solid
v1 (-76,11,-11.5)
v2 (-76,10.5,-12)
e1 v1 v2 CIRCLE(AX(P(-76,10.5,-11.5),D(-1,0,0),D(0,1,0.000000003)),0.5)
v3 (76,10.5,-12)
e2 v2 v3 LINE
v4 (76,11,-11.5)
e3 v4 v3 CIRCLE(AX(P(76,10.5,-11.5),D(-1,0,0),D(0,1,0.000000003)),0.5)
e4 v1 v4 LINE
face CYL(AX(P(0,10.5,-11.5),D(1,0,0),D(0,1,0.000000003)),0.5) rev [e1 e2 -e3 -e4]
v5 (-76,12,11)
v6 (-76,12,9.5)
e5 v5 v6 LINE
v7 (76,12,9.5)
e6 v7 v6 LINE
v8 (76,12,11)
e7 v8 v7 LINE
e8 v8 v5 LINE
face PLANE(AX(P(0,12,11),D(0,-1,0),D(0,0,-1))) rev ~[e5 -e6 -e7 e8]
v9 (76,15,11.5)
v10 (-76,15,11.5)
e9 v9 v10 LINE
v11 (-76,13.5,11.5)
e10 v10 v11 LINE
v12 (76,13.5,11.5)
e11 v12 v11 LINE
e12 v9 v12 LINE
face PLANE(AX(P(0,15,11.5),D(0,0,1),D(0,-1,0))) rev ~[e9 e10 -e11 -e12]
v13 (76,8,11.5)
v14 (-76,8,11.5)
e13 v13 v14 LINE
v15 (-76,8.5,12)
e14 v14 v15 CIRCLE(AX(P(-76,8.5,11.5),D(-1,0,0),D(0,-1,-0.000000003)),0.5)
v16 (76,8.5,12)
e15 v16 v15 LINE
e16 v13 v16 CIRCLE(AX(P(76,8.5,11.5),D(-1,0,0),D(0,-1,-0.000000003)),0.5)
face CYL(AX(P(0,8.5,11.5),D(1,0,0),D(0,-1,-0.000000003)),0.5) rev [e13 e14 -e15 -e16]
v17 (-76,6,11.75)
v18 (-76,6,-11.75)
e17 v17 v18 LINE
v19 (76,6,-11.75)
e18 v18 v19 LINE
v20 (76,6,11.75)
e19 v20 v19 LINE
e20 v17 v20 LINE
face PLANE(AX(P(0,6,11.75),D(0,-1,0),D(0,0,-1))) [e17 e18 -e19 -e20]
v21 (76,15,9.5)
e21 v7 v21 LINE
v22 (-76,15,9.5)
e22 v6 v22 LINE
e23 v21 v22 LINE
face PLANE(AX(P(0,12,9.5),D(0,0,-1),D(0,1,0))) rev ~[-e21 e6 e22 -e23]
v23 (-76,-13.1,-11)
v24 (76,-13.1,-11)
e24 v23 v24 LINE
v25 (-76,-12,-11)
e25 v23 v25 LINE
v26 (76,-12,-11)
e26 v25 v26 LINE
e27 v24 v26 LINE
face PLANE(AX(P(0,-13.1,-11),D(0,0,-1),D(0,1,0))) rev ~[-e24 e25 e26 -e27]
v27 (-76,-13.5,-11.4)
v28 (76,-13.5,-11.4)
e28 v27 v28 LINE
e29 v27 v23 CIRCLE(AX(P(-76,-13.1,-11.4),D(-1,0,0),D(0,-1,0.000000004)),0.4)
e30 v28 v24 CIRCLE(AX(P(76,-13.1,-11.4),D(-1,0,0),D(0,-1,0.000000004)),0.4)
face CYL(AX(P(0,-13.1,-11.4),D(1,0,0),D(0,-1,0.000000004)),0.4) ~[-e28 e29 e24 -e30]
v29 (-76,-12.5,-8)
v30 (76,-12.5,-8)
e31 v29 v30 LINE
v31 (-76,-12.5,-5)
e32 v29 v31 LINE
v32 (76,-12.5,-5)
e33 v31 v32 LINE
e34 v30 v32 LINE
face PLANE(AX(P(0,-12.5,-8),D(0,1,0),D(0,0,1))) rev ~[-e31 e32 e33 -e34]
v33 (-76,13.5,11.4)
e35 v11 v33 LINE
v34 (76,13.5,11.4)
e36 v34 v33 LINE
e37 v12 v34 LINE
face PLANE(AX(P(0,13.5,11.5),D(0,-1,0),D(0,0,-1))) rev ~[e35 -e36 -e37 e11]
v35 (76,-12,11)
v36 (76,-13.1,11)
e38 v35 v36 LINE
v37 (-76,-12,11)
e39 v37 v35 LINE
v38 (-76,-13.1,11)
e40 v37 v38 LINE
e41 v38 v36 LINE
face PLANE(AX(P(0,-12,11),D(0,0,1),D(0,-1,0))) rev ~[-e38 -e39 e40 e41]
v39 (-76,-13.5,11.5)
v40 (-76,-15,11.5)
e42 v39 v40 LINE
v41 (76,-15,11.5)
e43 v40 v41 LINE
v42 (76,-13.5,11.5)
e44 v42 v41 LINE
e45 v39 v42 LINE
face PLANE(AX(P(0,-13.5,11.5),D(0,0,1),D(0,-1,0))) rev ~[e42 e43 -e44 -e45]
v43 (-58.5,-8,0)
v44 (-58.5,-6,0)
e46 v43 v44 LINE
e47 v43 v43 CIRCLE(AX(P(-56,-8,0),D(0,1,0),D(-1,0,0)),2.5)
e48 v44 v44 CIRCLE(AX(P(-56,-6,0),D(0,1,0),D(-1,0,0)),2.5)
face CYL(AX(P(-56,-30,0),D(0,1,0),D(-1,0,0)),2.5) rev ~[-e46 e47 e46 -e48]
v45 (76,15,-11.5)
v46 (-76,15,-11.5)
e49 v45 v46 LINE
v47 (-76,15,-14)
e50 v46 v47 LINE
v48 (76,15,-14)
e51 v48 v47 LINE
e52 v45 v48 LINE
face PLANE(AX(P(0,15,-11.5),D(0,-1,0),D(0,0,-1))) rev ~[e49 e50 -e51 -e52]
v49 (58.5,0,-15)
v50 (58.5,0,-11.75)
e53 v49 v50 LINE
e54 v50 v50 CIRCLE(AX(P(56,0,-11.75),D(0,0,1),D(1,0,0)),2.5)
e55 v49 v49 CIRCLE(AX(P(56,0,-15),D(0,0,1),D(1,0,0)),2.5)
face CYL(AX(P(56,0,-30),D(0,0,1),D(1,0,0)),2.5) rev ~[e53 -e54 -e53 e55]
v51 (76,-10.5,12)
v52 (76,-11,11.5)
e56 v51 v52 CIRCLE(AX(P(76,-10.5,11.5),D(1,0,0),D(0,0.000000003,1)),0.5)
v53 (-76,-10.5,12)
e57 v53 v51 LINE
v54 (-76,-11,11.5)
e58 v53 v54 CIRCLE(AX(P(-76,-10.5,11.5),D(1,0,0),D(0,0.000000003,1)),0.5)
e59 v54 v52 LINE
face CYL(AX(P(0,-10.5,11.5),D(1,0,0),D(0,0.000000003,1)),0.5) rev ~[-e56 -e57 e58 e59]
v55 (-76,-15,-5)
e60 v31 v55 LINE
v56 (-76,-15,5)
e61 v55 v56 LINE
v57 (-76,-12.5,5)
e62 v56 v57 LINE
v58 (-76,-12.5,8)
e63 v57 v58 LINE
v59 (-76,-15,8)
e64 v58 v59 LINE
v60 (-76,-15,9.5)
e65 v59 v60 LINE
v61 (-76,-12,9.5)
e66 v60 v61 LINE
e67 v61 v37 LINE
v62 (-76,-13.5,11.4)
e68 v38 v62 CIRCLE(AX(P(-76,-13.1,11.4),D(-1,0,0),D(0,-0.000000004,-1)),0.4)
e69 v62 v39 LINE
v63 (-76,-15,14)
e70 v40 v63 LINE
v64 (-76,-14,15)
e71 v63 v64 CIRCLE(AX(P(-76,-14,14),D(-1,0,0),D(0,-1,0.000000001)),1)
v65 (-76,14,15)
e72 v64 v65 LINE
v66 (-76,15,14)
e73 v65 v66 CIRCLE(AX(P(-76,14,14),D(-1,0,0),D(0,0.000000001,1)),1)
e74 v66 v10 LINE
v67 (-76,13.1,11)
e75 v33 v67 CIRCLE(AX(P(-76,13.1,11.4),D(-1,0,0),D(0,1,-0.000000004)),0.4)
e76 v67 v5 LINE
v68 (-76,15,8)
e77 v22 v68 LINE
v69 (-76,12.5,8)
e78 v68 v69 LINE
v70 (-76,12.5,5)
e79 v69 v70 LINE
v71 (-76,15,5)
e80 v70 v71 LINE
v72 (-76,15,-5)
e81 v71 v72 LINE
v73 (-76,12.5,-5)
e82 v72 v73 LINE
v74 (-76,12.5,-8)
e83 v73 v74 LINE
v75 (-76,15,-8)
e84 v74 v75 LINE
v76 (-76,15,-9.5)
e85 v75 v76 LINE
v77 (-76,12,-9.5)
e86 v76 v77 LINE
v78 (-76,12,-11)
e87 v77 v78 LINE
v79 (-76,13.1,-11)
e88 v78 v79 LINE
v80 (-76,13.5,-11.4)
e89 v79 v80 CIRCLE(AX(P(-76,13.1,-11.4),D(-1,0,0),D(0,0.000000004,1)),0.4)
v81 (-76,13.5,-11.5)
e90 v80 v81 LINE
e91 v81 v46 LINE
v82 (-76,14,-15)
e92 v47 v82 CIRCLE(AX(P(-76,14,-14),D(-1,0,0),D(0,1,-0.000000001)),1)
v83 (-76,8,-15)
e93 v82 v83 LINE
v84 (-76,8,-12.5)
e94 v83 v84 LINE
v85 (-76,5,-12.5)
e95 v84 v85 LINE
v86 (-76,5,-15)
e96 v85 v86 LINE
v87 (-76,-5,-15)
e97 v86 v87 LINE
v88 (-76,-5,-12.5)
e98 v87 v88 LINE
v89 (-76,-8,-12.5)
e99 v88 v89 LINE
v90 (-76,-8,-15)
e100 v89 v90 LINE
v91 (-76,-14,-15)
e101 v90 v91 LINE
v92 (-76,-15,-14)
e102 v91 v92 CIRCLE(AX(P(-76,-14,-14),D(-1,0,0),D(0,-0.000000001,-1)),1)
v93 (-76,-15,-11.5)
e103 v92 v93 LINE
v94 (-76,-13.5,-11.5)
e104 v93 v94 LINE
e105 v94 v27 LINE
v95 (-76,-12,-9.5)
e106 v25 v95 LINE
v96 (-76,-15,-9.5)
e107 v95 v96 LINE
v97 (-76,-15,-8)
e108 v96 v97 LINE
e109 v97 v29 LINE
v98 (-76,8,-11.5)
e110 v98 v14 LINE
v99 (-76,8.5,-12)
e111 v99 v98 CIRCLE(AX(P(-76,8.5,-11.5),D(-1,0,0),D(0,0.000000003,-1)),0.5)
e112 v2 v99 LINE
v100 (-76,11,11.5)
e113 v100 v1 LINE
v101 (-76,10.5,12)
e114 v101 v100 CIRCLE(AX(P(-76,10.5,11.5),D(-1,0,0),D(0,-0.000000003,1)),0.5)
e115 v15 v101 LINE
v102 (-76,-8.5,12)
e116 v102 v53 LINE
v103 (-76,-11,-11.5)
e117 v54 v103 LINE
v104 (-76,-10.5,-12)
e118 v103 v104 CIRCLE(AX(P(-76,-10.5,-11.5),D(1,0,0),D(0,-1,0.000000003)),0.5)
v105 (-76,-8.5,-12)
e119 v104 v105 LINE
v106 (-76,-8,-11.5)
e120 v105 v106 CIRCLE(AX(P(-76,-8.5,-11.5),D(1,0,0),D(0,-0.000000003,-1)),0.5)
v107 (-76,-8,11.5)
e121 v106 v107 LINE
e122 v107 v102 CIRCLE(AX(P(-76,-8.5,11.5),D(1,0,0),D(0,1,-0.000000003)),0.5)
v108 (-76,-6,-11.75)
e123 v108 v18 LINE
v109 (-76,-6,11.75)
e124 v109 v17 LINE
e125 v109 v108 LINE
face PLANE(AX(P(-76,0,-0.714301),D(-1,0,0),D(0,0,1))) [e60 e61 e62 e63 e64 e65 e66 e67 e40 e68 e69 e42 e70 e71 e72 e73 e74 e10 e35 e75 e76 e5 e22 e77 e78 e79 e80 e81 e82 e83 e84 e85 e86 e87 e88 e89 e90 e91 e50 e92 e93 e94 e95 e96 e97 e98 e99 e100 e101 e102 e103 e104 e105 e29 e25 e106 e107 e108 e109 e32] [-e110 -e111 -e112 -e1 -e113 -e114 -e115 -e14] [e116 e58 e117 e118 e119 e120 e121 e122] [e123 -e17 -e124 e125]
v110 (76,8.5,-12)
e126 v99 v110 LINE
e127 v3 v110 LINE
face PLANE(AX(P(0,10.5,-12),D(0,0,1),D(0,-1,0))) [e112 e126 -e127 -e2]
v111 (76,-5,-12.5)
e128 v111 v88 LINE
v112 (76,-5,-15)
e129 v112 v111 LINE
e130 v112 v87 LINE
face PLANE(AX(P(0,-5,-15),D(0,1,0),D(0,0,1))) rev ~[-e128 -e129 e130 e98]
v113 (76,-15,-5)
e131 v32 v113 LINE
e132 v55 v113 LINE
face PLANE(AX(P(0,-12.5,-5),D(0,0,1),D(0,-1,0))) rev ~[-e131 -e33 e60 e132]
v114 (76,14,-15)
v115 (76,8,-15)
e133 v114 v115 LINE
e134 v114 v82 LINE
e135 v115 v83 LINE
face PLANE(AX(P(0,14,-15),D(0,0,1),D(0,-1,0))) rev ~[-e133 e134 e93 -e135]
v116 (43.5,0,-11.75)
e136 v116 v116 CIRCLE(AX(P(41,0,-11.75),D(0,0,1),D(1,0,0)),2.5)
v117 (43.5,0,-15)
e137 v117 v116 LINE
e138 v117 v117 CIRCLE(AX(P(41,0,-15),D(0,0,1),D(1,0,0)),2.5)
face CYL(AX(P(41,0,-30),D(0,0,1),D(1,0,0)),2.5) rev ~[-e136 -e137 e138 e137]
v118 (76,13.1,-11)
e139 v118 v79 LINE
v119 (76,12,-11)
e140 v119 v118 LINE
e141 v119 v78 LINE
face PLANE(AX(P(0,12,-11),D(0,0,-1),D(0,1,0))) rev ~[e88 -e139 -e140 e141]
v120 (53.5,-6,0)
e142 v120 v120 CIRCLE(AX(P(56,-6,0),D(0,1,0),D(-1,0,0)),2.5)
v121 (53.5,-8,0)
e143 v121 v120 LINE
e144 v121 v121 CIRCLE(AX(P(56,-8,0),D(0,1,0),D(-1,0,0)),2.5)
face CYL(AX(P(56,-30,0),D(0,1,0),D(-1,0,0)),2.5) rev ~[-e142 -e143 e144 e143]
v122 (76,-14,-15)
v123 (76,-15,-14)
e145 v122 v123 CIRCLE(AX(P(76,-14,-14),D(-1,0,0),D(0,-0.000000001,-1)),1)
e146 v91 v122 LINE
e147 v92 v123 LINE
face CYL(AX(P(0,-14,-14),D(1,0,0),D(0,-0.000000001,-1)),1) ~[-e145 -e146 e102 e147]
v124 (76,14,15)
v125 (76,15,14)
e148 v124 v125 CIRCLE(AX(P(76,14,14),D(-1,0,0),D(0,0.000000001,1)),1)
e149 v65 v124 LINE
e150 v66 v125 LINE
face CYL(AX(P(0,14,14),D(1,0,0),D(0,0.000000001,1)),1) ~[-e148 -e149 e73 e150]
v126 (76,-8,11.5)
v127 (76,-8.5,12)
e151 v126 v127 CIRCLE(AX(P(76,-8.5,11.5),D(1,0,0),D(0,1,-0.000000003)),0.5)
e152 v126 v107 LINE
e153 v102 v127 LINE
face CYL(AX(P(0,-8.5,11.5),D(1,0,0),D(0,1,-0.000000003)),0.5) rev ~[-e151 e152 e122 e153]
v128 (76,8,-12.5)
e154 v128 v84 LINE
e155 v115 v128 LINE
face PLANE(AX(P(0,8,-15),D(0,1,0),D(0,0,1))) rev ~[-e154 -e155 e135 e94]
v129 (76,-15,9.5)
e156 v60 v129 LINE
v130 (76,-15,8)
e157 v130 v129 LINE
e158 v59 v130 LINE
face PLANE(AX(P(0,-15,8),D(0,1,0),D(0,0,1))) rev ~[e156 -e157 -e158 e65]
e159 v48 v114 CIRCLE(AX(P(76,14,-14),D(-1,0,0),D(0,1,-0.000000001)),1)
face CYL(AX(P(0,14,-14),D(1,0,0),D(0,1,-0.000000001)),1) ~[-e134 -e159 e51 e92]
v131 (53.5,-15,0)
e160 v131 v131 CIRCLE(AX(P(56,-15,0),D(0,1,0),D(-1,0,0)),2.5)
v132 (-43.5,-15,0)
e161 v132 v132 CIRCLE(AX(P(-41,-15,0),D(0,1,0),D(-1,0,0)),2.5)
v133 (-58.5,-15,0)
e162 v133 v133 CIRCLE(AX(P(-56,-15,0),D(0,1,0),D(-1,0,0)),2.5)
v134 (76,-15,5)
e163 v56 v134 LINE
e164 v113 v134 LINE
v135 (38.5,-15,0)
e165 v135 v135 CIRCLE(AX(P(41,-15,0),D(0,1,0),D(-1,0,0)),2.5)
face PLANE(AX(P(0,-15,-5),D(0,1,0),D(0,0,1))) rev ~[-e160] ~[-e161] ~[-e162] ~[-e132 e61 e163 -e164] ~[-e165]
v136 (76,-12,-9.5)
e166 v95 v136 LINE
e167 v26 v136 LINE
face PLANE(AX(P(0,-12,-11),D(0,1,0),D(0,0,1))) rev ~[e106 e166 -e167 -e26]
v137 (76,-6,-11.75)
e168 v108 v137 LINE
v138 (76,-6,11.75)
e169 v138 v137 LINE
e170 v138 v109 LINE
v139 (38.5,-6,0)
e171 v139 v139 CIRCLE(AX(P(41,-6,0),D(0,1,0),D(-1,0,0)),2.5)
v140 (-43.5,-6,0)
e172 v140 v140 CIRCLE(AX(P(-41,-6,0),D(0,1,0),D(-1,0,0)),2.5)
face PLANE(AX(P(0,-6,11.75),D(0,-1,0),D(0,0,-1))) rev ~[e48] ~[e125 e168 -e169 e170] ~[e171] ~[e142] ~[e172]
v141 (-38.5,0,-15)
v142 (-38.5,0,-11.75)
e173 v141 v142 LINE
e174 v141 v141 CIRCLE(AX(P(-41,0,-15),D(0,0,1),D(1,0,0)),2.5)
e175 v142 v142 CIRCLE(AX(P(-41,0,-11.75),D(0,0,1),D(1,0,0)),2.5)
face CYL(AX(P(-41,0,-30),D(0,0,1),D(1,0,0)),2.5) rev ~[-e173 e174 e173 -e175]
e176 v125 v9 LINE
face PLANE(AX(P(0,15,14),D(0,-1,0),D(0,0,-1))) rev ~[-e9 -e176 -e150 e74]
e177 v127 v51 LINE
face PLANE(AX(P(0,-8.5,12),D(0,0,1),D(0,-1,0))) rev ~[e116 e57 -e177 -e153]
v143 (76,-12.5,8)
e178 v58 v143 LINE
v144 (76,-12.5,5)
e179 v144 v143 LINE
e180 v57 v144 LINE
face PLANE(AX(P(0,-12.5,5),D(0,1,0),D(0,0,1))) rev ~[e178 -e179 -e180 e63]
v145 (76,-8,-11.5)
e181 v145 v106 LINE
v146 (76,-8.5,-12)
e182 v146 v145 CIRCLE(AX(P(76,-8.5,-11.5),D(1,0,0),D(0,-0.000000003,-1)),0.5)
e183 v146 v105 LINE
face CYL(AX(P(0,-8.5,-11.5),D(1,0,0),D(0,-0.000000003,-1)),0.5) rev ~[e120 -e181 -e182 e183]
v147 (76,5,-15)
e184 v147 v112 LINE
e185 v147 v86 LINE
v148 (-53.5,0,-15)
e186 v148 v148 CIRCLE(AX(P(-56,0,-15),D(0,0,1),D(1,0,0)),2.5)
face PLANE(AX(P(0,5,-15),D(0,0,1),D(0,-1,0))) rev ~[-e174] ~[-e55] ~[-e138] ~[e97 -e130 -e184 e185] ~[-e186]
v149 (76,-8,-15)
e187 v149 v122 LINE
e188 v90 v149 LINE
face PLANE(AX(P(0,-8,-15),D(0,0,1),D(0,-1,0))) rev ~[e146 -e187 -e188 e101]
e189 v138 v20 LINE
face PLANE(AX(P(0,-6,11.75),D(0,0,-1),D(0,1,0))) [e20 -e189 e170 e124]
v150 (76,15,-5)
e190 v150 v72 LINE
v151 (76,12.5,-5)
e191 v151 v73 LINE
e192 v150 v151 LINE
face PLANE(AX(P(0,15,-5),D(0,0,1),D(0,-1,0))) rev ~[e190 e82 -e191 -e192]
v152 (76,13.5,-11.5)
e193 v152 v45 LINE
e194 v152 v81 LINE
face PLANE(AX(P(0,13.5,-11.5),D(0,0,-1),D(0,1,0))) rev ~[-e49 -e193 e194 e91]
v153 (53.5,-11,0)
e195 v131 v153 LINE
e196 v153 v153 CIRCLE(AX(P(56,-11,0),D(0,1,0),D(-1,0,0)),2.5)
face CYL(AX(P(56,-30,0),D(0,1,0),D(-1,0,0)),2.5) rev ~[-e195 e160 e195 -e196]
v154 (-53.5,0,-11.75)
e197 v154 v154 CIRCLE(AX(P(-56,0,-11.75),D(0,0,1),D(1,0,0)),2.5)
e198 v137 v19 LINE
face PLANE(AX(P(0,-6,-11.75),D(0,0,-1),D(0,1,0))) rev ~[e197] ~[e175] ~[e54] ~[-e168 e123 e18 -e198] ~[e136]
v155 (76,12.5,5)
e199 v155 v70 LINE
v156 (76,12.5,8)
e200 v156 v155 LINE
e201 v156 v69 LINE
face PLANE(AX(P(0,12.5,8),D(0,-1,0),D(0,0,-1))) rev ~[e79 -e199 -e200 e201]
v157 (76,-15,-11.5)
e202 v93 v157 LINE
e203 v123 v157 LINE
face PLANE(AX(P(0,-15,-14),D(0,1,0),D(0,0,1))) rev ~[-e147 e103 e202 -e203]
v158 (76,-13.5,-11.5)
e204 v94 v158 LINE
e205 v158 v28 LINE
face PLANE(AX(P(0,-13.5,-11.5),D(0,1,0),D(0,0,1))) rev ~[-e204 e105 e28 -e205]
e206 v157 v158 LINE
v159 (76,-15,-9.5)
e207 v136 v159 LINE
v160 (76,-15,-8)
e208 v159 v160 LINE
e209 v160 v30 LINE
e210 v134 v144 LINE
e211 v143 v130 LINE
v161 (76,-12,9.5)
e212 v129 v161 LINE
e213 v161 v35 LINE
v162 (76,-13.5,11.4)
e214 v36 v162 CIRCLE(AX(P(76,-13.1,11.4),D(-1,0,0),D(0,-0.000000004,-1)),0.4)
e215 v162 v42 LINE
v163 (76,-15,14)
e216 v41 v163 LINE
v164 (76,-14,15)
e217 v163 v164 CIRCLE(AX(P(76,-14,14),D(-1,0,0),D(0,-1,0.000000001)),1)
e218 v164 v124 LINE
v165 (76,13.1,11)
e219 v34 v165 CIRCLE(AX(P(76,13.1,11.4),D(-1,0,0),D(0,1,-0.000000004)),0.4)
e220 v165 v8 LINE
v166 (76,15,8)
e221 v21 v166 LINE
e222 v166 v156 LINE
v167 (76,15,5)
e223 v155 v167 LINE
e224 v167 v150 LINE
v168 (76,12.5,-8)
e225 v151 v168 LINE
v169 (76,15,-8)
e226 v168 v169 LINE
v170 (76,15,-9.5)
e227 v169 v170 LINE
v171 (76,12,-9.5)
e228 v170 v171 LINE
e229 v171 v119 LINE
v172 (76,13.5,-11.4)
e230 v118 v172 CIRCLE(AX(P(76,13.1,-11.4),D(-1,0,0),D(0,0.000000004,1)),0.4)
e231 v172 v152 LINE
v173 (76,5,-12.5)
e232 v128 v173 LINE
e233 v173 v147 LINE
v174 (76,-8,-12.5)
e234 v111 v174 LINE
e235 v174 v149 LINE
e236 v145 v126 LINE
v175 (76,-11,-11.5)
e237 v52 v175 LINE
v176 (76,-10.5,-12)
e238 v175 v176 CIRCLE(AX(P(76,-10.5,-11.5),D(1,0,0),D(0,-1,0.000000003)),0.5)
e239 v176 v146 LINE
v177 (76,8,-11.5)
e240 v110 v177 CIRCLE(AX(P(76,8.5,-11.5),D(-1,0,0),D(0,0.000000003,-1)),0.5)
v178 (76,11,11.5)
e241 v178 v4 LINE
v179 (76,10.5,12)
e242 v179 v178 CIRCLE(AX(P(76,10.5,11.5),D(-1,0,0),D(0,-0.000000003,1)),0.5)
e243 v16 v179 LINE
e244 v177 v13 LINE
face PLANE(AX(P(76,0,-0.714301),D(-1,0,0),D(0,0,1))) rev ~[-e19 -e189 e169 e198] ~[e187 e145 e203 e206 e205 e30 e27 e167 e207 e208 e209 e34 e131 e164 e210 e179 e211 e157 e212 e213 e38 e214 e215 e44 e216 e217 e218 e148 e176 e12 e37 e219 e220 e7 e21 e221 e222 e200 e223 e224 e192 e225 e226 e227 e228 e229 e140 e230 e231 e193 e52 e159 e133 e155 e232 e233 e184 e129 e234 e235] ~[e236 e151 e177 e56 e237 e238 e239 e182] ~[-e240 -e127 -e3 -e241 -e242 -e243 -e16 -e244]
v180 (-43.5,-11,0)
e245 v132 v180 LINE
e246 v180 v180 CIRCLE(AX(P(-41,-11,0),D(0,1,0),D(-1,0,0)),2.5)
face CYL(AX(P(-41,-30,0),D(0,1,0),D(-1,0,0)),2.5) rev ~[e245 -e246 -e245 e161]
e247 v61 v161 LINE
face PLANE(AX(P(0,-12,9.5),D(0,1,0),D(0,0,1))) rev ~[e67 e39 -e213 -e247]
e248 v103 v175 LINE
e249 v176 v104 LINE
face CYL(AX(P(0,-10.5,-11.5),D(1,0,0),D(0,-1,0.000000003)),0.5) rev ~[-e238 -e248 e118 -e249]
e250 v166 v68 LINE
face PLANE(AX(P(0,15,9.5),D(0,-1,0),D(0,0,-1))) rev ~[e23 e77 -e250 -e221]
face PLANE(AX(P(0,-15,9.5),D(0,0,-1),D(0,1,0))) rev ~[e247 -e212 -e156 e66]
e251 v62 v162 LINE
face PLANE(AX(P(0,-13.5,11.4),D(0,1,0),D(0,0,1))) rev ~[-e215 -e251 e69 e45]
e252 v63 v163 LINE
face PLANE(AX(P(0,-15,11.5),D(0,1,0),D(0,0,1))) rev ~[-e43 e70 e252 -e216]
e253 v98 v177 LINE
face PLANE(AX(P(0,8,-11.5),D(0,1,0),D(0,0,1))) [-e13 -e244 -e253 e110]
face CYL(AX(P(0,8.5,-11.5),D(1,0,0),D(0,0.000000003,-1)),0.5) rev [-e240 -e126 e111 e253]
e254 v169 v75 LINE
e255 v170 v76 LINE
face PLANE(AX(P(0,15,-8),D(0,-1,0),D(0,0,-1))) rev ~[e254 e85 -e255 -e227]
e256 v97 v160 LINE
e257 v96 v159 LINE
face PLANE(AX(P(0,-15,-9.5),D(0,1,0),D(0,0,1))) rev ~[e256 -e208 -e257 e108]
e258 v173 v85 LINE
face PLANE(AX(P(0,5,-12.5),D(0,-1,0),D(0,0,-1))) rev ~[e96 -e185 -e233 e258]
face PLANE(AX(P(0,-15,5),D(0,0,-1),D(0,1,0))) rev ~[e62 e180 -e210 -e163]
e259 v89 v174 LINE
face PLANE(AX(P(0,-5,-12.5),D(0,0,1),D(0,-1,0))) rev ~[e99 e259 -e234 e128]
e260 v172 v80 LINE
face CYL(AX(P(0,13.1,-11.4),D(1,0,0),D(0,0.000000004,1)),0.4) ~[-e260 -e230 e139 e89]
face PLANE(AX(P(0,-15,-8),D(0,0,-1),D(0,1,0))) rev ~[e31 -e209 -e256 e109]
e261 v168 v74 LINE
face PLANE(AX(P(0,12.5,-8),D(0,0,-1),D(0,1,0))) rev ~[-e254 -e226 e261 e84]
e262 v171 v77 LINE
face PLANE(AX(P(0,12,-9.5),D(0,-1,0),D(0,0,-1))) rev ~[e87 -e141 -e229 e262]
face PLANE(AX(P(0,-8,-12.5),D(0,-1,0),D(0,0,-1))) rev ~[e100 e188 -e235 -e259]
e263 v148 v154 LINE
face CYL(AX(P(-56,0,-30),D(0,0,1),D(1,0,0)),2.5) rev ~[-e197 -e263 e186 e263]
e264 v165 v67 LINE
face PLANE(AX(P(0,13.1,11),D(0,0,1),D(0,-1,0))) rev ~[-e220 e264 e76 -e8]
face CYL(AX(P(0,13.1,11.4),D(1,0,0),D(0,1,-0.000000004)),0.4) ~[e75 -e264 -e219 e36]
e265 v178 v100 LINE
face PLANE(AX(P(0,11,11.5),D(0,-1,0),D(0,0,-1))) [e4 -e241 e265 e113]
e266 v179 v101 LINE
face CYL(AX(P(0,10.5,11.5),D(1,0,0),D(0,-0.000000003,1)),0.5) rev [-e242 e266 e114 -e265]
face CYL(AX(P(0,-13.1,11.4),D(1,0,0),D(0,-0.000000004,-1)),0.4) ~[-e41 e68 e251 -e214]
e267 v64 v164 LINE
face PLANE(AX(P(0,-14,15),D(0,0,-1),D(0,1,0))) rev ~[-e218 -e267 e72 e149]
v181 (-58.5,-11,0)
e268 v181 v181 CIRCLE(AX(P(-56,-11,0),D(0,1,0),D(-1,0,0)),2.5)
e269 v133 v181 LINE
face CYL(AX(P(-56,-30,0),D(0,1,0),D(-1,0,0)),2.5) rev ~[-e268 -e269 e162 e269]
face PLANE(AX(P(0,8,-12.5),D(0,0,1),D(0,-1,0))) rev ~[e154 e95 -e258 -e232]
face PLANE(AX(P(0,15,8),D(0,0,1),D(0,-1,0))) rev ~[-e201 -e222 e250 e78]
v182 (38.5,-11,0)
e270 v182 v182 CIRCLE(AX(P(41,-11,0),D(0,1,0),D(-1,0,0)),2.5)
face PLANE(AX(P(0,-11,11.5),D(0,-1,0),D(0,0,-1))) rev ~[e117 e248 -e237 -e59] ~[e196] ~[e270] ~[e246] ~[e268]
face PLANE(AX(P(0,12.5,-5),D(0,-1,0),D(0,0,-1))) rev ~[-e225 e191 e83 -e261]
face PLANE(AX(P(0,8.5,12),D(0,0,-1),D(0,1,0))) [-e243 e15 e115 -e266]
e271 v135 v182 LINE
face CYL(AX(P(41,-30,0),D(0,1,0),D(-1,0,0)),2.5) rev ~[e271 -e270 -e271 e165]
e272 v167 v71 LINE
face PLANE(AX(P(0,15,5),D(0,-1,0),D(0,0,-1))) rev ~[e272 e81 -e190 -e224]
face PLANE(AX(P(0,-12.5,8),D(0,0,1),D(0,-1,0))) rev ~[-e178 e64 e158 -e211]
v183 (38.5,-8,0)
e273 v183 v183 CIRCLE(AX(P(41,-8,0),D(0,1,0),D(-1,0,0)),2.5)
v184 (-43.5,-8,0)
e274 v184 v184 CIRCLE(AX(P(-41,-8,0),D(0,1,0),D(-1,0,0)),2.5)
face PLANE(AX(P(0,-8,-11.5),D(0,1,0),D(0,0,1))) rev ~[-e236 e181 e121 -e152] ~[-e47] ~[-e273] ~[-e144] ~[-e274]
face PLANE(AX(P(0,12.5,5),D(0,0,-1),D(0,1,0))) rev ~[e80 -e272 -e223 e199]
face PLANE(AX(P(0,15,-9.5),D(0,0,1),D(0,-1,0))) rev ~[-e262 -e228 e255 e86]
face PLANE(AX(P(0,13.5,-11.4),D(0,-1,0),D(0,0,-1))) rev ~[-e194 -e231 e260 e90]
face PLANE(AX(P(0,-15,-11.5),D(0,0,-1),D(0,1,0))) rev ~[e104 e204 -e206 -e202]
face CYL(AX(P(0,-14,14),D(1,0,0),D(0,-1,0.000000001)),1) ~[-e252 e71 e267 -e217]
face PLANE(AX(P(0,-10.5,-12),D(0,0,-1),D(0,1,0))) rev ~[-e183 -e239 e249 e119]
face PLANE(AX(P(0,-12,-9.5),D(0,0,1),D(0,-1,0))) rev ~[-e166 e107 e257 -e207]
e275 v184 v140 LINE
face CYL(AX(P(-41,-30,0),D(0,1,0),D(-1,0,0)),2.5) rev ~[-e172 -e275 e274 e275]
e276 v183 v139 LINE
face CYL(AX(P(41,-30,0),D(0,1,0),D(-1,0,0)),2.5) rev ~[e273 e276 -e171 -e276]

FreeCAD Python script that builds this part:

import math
import FreeCAD as App
import Part
import Sketcher
from FreeCAD import Vector
Q = App.Units.Quantity

doc = App.newDocument("Part")
body = doc.addObject("PartDesign::Body", "Body")

# Sketch on YZ plane
sketch1 = doc.addObject("Sketcher::SketchObject", "Sketch")
body.addObject(sketch1)
sketch1.AttachmentSupport = (doc.YZ_Plane, [""])
sketch1.MapMode = "FlatFace"
sketch1.addGeometry(Part.LineSegment(Vector(15, 11.5, 0), Vector(15, 14, 0)), False)
sketch1.addGeometry(Part.ArcOfCircle(Part.Circle(Vector(14, 14, 0), Vector(0, 0, 1), 1), math.radians(0), math.radians(90)), False)
sketch1.addGeometry(Part.LineSegment(Vector(14, 15, 0), Vector(-14, 15, 0)), False)
sketch1.addGeometry(Part.ArcOfCircle(Part.Circle(Vector(-14, 14, 0), Vector(0, 0, 1), 1), math.radians(90), math.radians(180)), False)
sketch1.addGeometry(Part.LineSegment(Vector(-15, 14, 0), Vector(-15, 11.5, 0)), False)
sketch1.addGeometry(Part.LineSegment(Vector(-15, 11.5, 0), Vector(-13.5, 11.5, 0)), False)
sketch1.addGeometry(Part.LineSegment(Vector(-13.5, 11.5, 0), Vector(-13.5, 11.4, 0)), False)
sketch1.addGeometry(Part.ArcOfCircle(Part.Circle(Vector(-13.1, 11.4, 0), Vector(0, 0, 1), 0.4), math.radians(-180), math.radians(-90)), False)
sketch1.addGeometry(Part.LineSegment(Vector(-13.1, 11, 0), Vector(-12, 11, 0)), False)
sketch1.addGeometry(Part.LineSegment(Vector(-12, 11, 0), Vector(-12, 9.5, 0)), False)
sketch1.addGeometry(Part.LineSegment(Vector(-12, 9.5, 0), Vector(-15, 9.5, 0)), False)
sketch1.addGeometry(Part.LineSegment(Vector(-15, 9.5, 0), Vector(-15, 8, 0)), False)
sketch1.addGeometry(Part.LineSegment(Vector(-15, 8, 0), Vector(-12.5, 8, 0)), False)
sketch1.addGeometry(Part.LineSegment(Vector(-12.5, 8, 0), Vector(-12.5, 5, 0)), False)
sketch1.addGeometry(Part.LineSegment(Vector(-12.5, 5, 0), Vector(-15, 5, 0)), False)
sketch1.addGeometry(Part.LineSegment(Vector(-15, 5, 0), Vector(-15, -5, 0)), False)
sketch1.addGeometry(Part.LineSegment(Vector(-15, -5, 0), Vector(-12.5, -5, 0)), False)
sketch1.addGeometry(Part.LineSegment(Vector(-12.5, -5, 0), Vector(-12.5, -8, 0)), False)
sketch1.addGeometry(Part.LineSegment(Vector(-12.5, -8, 0), Vector(-15, -8, 0)), False)
sketch1.addGeometry(Part.LineSegment(Vector(-15, -8, 0), Vector(-15, -9.5, 0)), False)
sketch1.addGeometry(Part.LineSegment(Vector(-15, -9.5, 0), Vector(-12, -9.5, 0)), False)
sketch1.addGeometry(Part.LineSegment(Vector(-12, -9.5, 0), Vector(-12, -11, 0)), False)
sketch1.addGeometry(Part.LineSegment(Vector(-12, -11, 0), Vector(-13.1, -11, 0)), False)
sketch1.addGeometry(Part.ArcOfCircle(Part.Circle(Vector(-13.1, -11.4, 0), Vector(0, 0, 1), 0.4), math.radians(90), math.radians(180)), False)
sketch1.addGeometry(Part.LineSegment(Vector(-13.5, -11.4, 0), Vector(-13.5, -11.5, 0)), False)
sketch1.addGeometry(Part.LineSegment(Vector(-13.5, -11.5, 0), Vector(-15, -11.5, 0)), False)
sketch1.addGeometry(Part.LineSegment(Vector(-15, -11.5, 0), Vector(-15, -14, 0)), False)
sketch1.addGeometry(Part.ArcOfCircle(Part.Circle(Vector(-14, -14, 0), Vector(0, 0, 1), 1), math.radians(-180), math.radians(-90)), False)
sketch1.addGeometry(Part.LineSegment(Vector(-14, -15, 0), Vector(-8, -15, 0)), False)
sketch1.addGeometry(Part.LineSegment(Vector(-8, -15, 0), Vector(-8, -12.5, 0)), False)
sketch1.addGeometry(Part.LineSegment(Vector(-8, -12.5, 0), Vector(-5, -12.5, 0)), False)
sketch1.addGeometry(Part.LineSegment(Vector(-5, -12.5, 0), Vector(-5, -15, 0)), False)
sketch1.addGeometry(Part.LineSegment(Vector(-5, -15, 0), Vector(5, -15, 0)), False)
sketch1.addGeometry(Part.LineSegment(Vector(5, -15, 0), Vector(5, -12.5, 0)), False)
sketch1.addGeometry(Part.LineSegment(Vector(5, -12.5, 0), Vector(8, -12.5, 0)), False)
sketch1.addGeometry(Part.LineSegment(Vector(8, -12.5, 0), Vector(8, -15, 0)), False)
sketch1.addGeometry(Part.LineSegment(Vector(8, -15, 0), Vector(14, -15, 0)), False)
sketch1.addGeometry(Part.ArcOfCircle(Part.Circle(Vector(14, -14, 0), Vector(0, 0, 1), 1), math.radians(-90), math.radians(0)), False)
sketch1.addGeometry(Part.LineSegment(Vector(15, -14, 0), Vector(15, -11.5, 0)), False)
sketch1.addGeometry(Part.LineSegment(Vector(15, -11.5, 0), Vector(13.5, -11.5, 0)), False)
sketch1.addGeometry(Part.LineSegment(Vector(13.5, -11.5, 0), Vector(13.5, -11.4, 0)), False)
sketch1.addGeometry(Part.ArcOfCircle(Part.Circle(Vector(13.1, -11.4, 0), Vector(0, 0, 1), 0.4), math.radians(0), math.radians(90)), False)
sketch1.addGeometry(Part.LineSegment(Vector(13.1, -11, 0), Vector(12, -11, 0)), False)
sketch1.addGeometry(Part.LineSegment(Vector(12, -11, 0), Vector(12, -9.5, 0)), False)
sketch1.addGeometry(Part.LineSegment(Vector(12, -9.5, 0), Vector(15, -9.5, 0)), False)
sketch1.addGeometry(Part.LineSegment(Vector(15, -9.5, 0), Vector(15, -8, 0)), False)
sketch1.addGeometry(Part.LineSegment(Vector(15, -8, 0), Vector(12.5, -8, 0)), False)
sketch1.addGeometry(Part.LineSegment(Vector(12.5, -8, 0), Vector(12.5, -5, 0)), False)
sketch1.addGeometry(Part.LineSegment(Vector(12.5, -5, 0), Vector(15, -5, 0)), False)
sketch1.addGeometry(Part.LineSegment(Vector(15, -5, 0), Vector(15, 5, 0)), False)
sketch1.addGeometry(Part.LineSegment(Vector(15, 5, 0), Vector(12.5, 5, 0)), False)
sketch1.addGeometry(Part.LineSegment(Vector(12.5, 5, 0), Vector(12.5, 8, 0)), False)
sketch1.addGeometry(Part.LineSegment(Vector(12.5, 8, 0), Vector(15, 8, 0)), False)
sketch1.addGeometry(Part.LineSegment(Vector(15, 8, 0), Vector(15, 9.5, 0)), False)
sketch1.addGeometry(Part.LineSegment(Vector(15, 9.5, 0), Vector(12, 9.5, 0)), False)
sketch1.addGeometry(Part.LineSegment(Vector(12, 9.5, 0), Vector(12, 11, 0)), False)
sketch1.addGeometry(Part.LineSegment(Vector(12, 11, 0), Vector(13.1, 11, 0)), False)
sketch1.addGeometry(Part.ArcOfCircle(Part.Circle(Vector(13.1, 11.4, 0), Vector(0, 0, 1), 0.4), math.radians(-90), math.radians(0)), False)
sketch1.addGeometry(Part.LineSegment(Vector(13.5, 11.4, 0), Vector(13.5, 11.5, 0)), False)
sketch1.addGeometry(Part.LineSegment(Vector(13.5, 11.5, 0), Vector(15, 11.5, 0)), False)
sketch1.addGeometry(Part.ArcOfCircle(Part.Circle(Vector(-10.5, -11.5, 0), Vector(0, 0, 1), 0.5), math.radians(180), math.radians(270)), False)
sketch1.addGeometry(Part.LineSegment(Vector(-11, -11.5, 0), Vector(-11, 11.5, 0)), False)
sketch1.addGeometry(Part.ArcOfCircle(Part.Circle(Vector(-10.5, 11.5, 0), Vector(0, 0, 1), 0.5), math.radians(90), math.radians(180)), False)
sketch1.addGeometry(Part.LineSegment(Vector(-10.5, 12, 0), Vector(-8.5, 12, 0)), False)
sketch1.addGeometry(Part.ArcOfCircle(Part.Circle(Vector(-8.5, 11.5, 0), Vector(0, 0, 1), 0.5), math.radians(0), math.radians(90)), False)
sketch1.addGeometry(Part.LineSegment(Vector(-8, 11.5, 0), Vector(-8, -11.5, 0)), False)
sketch1.addGeometry(Part.ArcOfCircle(Part.Circle(Vector(-8.5, -11.5, 0), Vector(0, 0, 1), 0.5), math.radians(-90), math.radians(0)), False)
sketch1.addGeometry(Part.LineSegment(Vector(-8.5, -12, 0), Vector(-10.5, -12, 0)), False)
sketch1.addGeometry(Part.LineSegment(Vector(-6, 11.75, 0), Vector(6, 11.75, 0)), False)
sketch1.addGeometry(Part.LineSegment(Vector(6, 11.75, 0), Vector(6, -11.75, 0)), False)
sketch1.addGeometry(Part.LineSegment(Vector(6, -11.75, 0), Vector(-6, -11.75, 0)), False)
sketch1.addGeometry(Part.LineSegment(Vector(-6, -11.75, 0), Vector(-6, 11.75, 0)), False)
sketch1.addGeometry(Part.LineSegment(Vector(11, 11.5, 0), Vector(11, -11.5, 0)), False)
sketch1.addGeometry(Part.ArcOfCircle(Part.Circle(Vector(10.5, -11.5, 0), Vector(0, 0, 1), 0.5), math.radians(-90), math.radians(0)), False)
sketch1.addGeometry(Part.LineSegment(Vector(10.5, -12, 0), Vector(8.5, -12, 0)), False)
sketch1.addGeometry(Part.ArcOfCircle(Part.Circle(Vector(8.5, -11.5, 0), Vector(0, 0, 1), 0.5), math.radians(180), math.radians(270)), False)
sketch1.addGeometry(Part.LineSegment(Vector(8, -11.5, 0), Vector(8, 11.5, 0)), False)
sketch1.addGeometry(Part.ArcOfCircle(Part.Circle(Vector(8.5, 11.5, 0), Vector(0, 0, 1), 0.5), math.radians(90), math.radians(180)), False)
sketch1.addGeometry(Part.LineSegment(Vector(8.5, 12, 0), Vector(10.5, 12, 0)), False)
sketch1.addGeometry(Part.ArcOfCircle(Part.Circle(Vector(10.5, 11.5, 0), Vector(0, 0, 1), 0.5), math.radians(0), math.radians(90)), False)
sketch1.addConstraint(Sketcher.Constraint("Tangent", 0, 2, 1, 1))
sketch1.addConstraint(Sketcher.Constraint("Tangent", 1, 2, 2, 1))
sketch1.addConstraint(Sketcher.Constraint("Tangent", 2, 2, 3, 1))
sketch1.addConstraint(Sketcher.Constraint("Tangent", 3, 2, 4, 1))
sketch1.addConstraint(Sketcher.Constraint("Coincident", 4, 2, 5, 1))
sketch1.addConstraint(Sketcher.Constraint("Coincident", 5, 2, 6, 1))
sketch1.addConstraint(Sketcher.Constraint("Tangent", 6, 2, 7, 1))
sketch1.addConstraint(Sketcher.Constraint("Tangent", 7, 2, 8, 1))
sketch1.addConstraint(Sketcher.Constraint("Coincident", 8, 2, 9, 1))
sketch1.addConstraint(Sketcher.Constraint("Coincident", 9, 2, 10, 1))
sketch1.addConstraint(Sketcher.Constraint("Coincident", 10, 2, 11, 1))
sketch1.addConstraint(Sketcher.Constraint("Coincident", 11, 2, 12, 1))
sketch1.addConstraint(Sketcher.Constraint("Coincident", 12, 2, 13, 1))
sketch1.addConstraint(Sketcher.Constraint("Coincident", 13, 2, 14, 1))
sketch1.addConstraint(Sketcher.Constraint("Coincident", 14, 2, 15, 1))
sketch1.addConstraint(Sketcher.Constraint("Coincident", 15, 2, 16, 1))
sketch1.addConstraint(Sketcher.Constraint("Coincident", 16, 2, 17, 1))
sketch1.addConstraint(Sketcher.Constraint("Coincident", 17, 2, 18, 1))
sketch1.addConstraint(Sketcher.Constraint("Coincident", 18, 2, 19, 1))
sketch1.addConstraint(Sketcher.Constraint("Coincident", 19, 2, 20, 1))
sketch1.addConstraint(Sketcher.Constraint("Coincident", 20, 2, 21, 1))
sketch1.addConstraint(Sketcher.Constraint("Coincident", 21, 2, 22, 1))
sketch1.addConstraint(Sketcher.Constraint("Tangent", 22, 2, 23, 1))
sketch1.addConstraint(Sketcher.Constraint("Tangent", 23, 2, 24, 1))
sketch1.addConstraint(Sketcher.Constraint("Coincident", 24, 2, 25, 1))
sketch1.addConstraint(Sketcher.Constraint("Coincident", 25, 2, 26, 1))
sketch1.addConstraint(Sketcher.Constraint("Tangent", 26, 2, 27, 1))
sketch1.addConstraint(Sketcher.Constraint("Tangent", 27, 2, 28, 1))
sketch1.addConstraint(Sketcher.Constraint("Coincident", 28, 2, 29, 1))
sketch1.addConstraint(Sketcher.Constraint("Coincident", 29, 2, 30, 1))
sketch1.addConstraint(Sketcher.Constraint("Coincident", 30, 2, 31, 1))
sketch1.addConstraint(Sketcher.Constraint("Coincident", 31, 2, 32, 1))
sketch1.addConstraint(Sketcher.Constraint("Coincident", 32, 2, 33, 1))
sketch1.addConstraint(Sketcher.Constraint("Coincident", 33, 2, 34, 1))
sketch1.addConstraint(Sketcher.Constraint("Coincident", 34, 2, 35, 1))
sketch1.addConstraint(Sketcher.Constraint("Coincident", 35, 2, 36, 1))
sketch1.addConstraint(Sketcher.Constraint("Tangent", 36, 2, 37, 1))
sketch1.addConstraint(Sketcher.Constraint("Tangent", 37, 2, 38, 1))
sketch1.addConstraint(Sketcher.Constraint("Coincident", 38, 2, 39, 1))
sketch1.addConstraint(Sketcher.Constraint("Coincident", 39, 2, 40, 1))
sketch1.addConstraint(Sketcher.Constraint("Tangent", 40, 2, 41, 1))
sketch1.addConstraint(Sketcher.Constraint("Tangent", 41, 2, 42, 1))
sketch1.addConstraint(Sketcher.Constraint("Coincident", 42, 2, 43, 1))
sketch1.addConstraint(Sketcher.Constraint("Coincident", 43, 2, 44, 1))
sketch1.addConstraint(Sketcher.Constraint("Coincident", 44, 2, 45, 1))
sketch1.addConstraint(Sketcher.Constraint("Coincident", 45, 2, 46, 1))
sketch1.addConstraint(Sketcher.Constraint("Coincident", 46, 2, 47, 1))
sketch1.addConstraint(Sketcher.Constraint("Coincident", 47, 2, 48, 1))
sketch1.addConstraint(Sketcher.Constraint("Coincident", 48, 2, 49, 1))
sketch1.addConstraint(Sketcher.Constraint("Coincident", 49, 2, 50, 1))
sketch1.addConstraint(Sketcher.Constraint("Coincident", 50, 2, 51, 1))
sketch1.addConstraint(Sketcher.Constraint("Coincident", 51, 2, 52, 1))
sketch1.addConstraint(Sketcher.Constraint("Coincident", 52, 2, 53, 1))
sketch1.addConstraint(Sketcher.Constraint("Coincident", 53, 2, 54, 1))
sketch1.addConstraint(Sketcher.Constraint("Coincident", 54, 2, 55, 1))
sketch1.addConstraint(Sketcher.Constraint("Coincident", 55, 2, 56, 1))
sketch1.addConstraint(Sketcher.Constraint("Tangent", 56, 2, 57, 1))
sketch1.addConstraint(Sketcher.Constraint("Tangent", 57, 2, 58, 1))
sketch1.addConstraint(Sketcher.Constraint("Coincident", 58, 2, 59, 1))
sketch1.addConstraint(Sketcher.Constraint("Coincident", 59, 2, 0, 1))
sketch1.addConstraint(Sketcher.Constraint("Tangent", 60, 1, 61, 1))
sketch1.addConstraint(Sketcher.Constraint("Tangent", 61, 2, 62, 2))
sketch1.addConstraint(Sketcher.Constraint("Tangent", 62, 1, 63, 1))
sketch1.addConstraint(Sketcher.Constraint("Tangent", 63, 2, 64, 2))
sketch1.addConstraint(Sketcher.Constraint("Tangent", 64, 1, 65, 1))
sketch1.addConstraint(Sketcher.Constraint("Tangent", 65, 2, 66, 2))
sketch1.addConstraint(Sketcher.Constraint("Tangent", 66, 1, 67, 1))
sketch1.addConstraint(Sketcher.Constraint("Tangent", 67, 2, 60, 2))
sketch1.addConstraint(Sketcher.Constraint("Coincident", 68, 2, 69, 1))
sketch1.addConstraint(Sketcher.Constraint("Coincident", 69, 2, 70, 1))
sketch1.addConstraint(Sketcher.Constraint("Coincident", 70, 2, 71, 1))
sketch1.addConstraint(Sketcher.Constraint("Coincident", 71, 2, 68, 1))
sketch1.addConstraint(Sketcher.Constraint("Tangent", 72, 2, 73, 2))
sketch1.addConstraint(Sketcher.Constraint("Tangent", 73, 1, 74, 1))
sketch1.addConstraint(Sketcher.Constraint("Tangent", 74, 2, 75, 2))
sketch1.addConstraint(Sketcher.Constraint("Tangent", 75, 1, 76, 1))
sketch1.addConstraint(Sketcher.Constraint("Tangent", 76, 2, 77, 2))
sketch1.addConstraint(Sketcher.Constraint("Tangent", 77, 1, 78, 1))
sketch1.addConstraint(Sketcher.Constraint("Tangent", 78, 2, 79, 2))
sketch1.addConstraint(Sketcher.Constraint("Tangent", 79, 1, 72, 1))
sketch1.addConstraint(Sketcher.Constraint("Vertical", 0))
sketch1.addConstraint(Sketcher.Constraint("Horizontal", 2))
sketch1.addConstraint(Sketcher.Constraint("Vertical", 4))
sketch1.addConstraint(Sketcher.Constraint("Horizontal", 5))
sketch1.addConstraint(Sketcher.Constraint("Vertical", 6))
sketch1.addConstraint(Sketcher.Constraint("Horizontal", 8))
sketch1.addConstraint(Sketcher.Constraint("Vertical", 9))
sketch1.addConstraint(Sketcher.Constraint("Horizontal", 10))
sketch1.addConstraint(Sketcher.Constraint("Vertical", 11))
sketch1.addConstraint(Sketcher.Constraint("Horizontal", 12))
sketch1.addConstraint(Sketcher.Constraint("Vertical", 13))
sketch1.addConstraint(Sketcher.Constraint("Horizontal", 14))
sketch1.addConstraint(Sketcher.Constraint("Vertical", 15))
sketch1.addConstraint(Sketcher.Constraint("Horizontal", 16))
sketch1.addConstraint(Sketcher.Constraint("Vertical", 17))
sketch1.addConstraint(Sketcher.Constraint("Horizontal", 18))
sketch1.addConstraint(Sketcher.Constraint("Vertical", 19))
sketch1.addConstraint(Sketcher.Constraint("Horizontal", 20))
sketch1.addConstraint(Sketcher.Constraint("Vertical", 21))
sketch1.addConstraint(Sketcher.Constraint("Horizontal", 22))
sketch1.addConstraint(Sketcher.Constraint("Vertical", 24))
sketch1.addConstraint(Sketcher.Constraint("Horizontal", 25))
sketch1.addConstraint(Sketcher.Constraint("Vertical", 26))
sketch1.addConstraint(Sketcher.Constraint("Horizontal", 28))
sketch1.addConstraint(Sketcher.Constraint("Vertical", 29))
sketch1.addConstraint(Sketcher.Constraint("Horizontal", 30))
sketch1.addConstraint(Sketcher.Constraint("Vertical", 31))
sketch1.addConstraint(Sketcher.Constraint("Horizontal", 32))
sketch1.addConstraint(Sketcher.Constraint("Vertical", 33))
sketch1.addConstraint(Sketcher.Constraint("Horizontal", 34))
sketch1.addConstraint(Sketcher.Constraint("Vertical", 35))
sketch1.addConstraint(Sketcher.Constraint("Horizontal", 36))
sketch1.addConstraint(Sketcher.Constraint("Vertical", 38))
sketch1.addConstraint(Sketcher.Constraint("Horizontal", 39))
sketch1.addConstraint(Sketcher.Constraint("Vertical", 40))
sketch1.addConstraint(Sketcher.Constraint("Horizontal", 42))
sketch1.addConstraint(Sketcher.Constraint("Vertical", 43))
sketch1.addConstraint(Sketcher.Constraint("Horizontal", 44))
sketch1.addConstraint(Sketcher.Constraint("Vertical", 45))
sketch1.addConstraint(Sketcher.Constraint("Horizontal", 46))
sketch1.addConstraint(Sketcher.Constraint("Vertical", 47))
sketch1.addConstraint(Sketcher.Constraint("Horizontal", 48))
sketch1.addConstraint(Sketcher.Constraint("Vertical", 49))
sketch1.addConstraint(Sketcher.Constraint("Horizontal", 50))
sketch1.addConstraint(Sketcher.Constraint("Vertical", 51))
sketch1.addConstraint(Sketcher.Constraint("Horizontal", 52))
sketch1.addConstraint(Sketcher.Constraint("Vertical", 53))
sketch1.addConstraint(Sketcher.Constraint("Horizontal", 54))
sketch1.addConstraint(Sketcher.Constraint("Vertical", 55))
sketch1.addConstraint(Sketcher.Constraint("Horizontal", 56))
sketch1.addConstraint(Sketcher.Constraint("Vertical", 58))
sketch1.addConstraint(Sketcher.Constraint("Horizontal", 59))
sketch1.addConstraint(Sketcher.Constraint("Vertical", 61))
sketch1.addConstraint(Sketcher.Constraint("Horizontal", 63))
sketch1.addConstraint(Sketcher.Constraint("Vertical", 65))
sketch1.addConstraint(Sketcher.Constraint("Horizontal", 67))
sketch1.addConstraint(Sketcher.Constraint("Horizontal", 68))
sketch1.addConstraint(Sketcher.Constraint("Vertical", 69))
sketch1.addConstraint(Sketcher.Constraint("Horizontal", 70))
sketch1.addConstraint(Sketcher.Constraint("Vertical", 71))
sketch1.addConstraint(Sketcher.Constraint("Vertical", 72))
sketch1.addConstraint(Sketcher.Constraint("Horizontal", 74))
sketch1.addConstraint(Sketcher.Constraint("Vertical", 76))
sketch1.addConstraint(Sketcher.Constraint("Horizontal", 78))
sketch1.addConstraint(Sketcher.Constraint("Equal", 1, 3))
sketch1.addConstraint(Sketcher.Constraint("Equal", 7, 23))
sketch1.addConstraint(Sketcher.Constraint("Equal", 3, 27))
sketch1.addConstraint(Sketcher.Constraint("Equal", 27, 37))
sketch1.addConstraint(Sketcher.Constraint("Equal", 23, 41))
sketch1.addConstraint(Sketcher.Constraint("Equal", 41, 57))
sketch1.addConstraint(Sketcher.Constraint("Equal", 60, 62))
sketch1.addConstraint(Sketcher.Constraint("Equal", 62, 64))
sketch1.addConstraint(Sketcher.Constraint("Equal", 64, 66))
sketch1.addConstraint(Sketcher.Constraint("Equal", 66, 73))
sketch1.addConstraint(Sketcher.Constraint("Equal", 73, 75))
sketch1.addConstraint(Sketcher.Constraint("Equal", 75, 77))
sketch1.addConstraint(Sketcher.Constraint("Equal", 77, 79))
sketch1.addConstraint(Sketcher.Constraint("Symmetric", 1, 3, 27, 3, -1, 1))
sketch1.addConstraint(Sketcher.Constraint("Symmetric", 3, 3, 37, 3, -1, 1))
sketch1.addConstraint(Sketcher.Constraint("Symmetric", 7, 3, 41, 3, -1, 1))
sketch1.addConstraint(Sketcher.Constraint("Symmetric", 23, 3, 57, 3, -1, 1))
sketch1.addConstraint(Sketcher.Constraint("Symmetric", 62, 3, 73, 3, -1, 1))
sketch1.addConstraint(Sketcher.Constraint("Symmetric", 66, 3, 77, 3, -1, 1))
sketch1.addConstraint(Sketcher.Constraint("Symmetric", 9, 2, 43, 2, -1, 1))
sketch1.addConstraint(Sketcher.Constraint("Symmetric", 11, 2, 45, 2, -1, 1))
sketch1.addConstraint(Sketcher.Constraint("Symmetric", 13, 2, 47, 2, -1, 1))
sketch1.addConstraint(Sketcher.Constraint("Symmetric", 15, 2, 49, 2, -1, 1))
sketch1.addConstraint(Sketcher.Constraint("Symmetric", 17, 2, 51, 2, -1, 1))
sketch1.addConstraint(Sketcher.Constraint("Symmetric", 19, 2, 53, 2, -1, 1))
sketch1.addConstraint(Sketcher.Constraint("Symmetric", 68, 2, 70, 2, -1, 1))
sketch1.addConstraint(Sketcher.Constraint("Symmetric", 23, 3, 41, 3, -2))
sketch1.addConstraint(Sketcher.Constraint("Symmetric", 30, 2, 33, 2, -2))
sketch1.addConstraint(Sketcher.Constraint("Symmetric", 25, 2, 38, 2, -2))
sketch1.addConstraint(Sketcher.Constraint("Symmetric", 20, 2, 43, 2, -2))
sketch1.addConstraint(Sketcher.Constraint("Symmetric", 18, 2, 45, 2, -2))
sketch1.addConstraint(Sketcher.Constraint("Symmetric", 16, 2, 47, 2, -2))
sketch1.addConstraint(Sketcher.Constraint("Horizontal", 66, 3, 73, 3))
sketch1.addConstraint(Sketcher.Constraint("Horizontal", 79, 3, 4, 2))
sketch1.addConstraint(Sketcher.Constraint("Horizontal", 75, 3, 24, 2))
sketch1.addConstraint(Sketcher.Constraint("Horizontal", 28, 2, 31, 2))
sketch1.addConstraint(Sketcher.Constraint("Horizontal", 5, 2, 58, 2))
sketch1.addConstraint(Sketcher.Constraint("Vertical", 4, 2, 10, 2))
sketch1.addConstraint(Sketcher.Constraint("Vertical", 11, 2, 14, 2))
sketch1.addConstraint(Sketcher.Constraint("Vertical", 43, 2, 54, 2))
sketch1.addConstraint(Sketcher.Constraint("Vertical", 29, 2, 64, 1))
sketch1.addConstraint(Sketcher.Constraint("Vertical", 35, 2, 75, 1))
sketch1.addConstraint(Sketcher.Constraint("Equal", 20, 30))
sketch1.addConstraint(Sketcher.Constraint("Equal", 52, 0))
sketch1.addConstraint(Sketcher.Constraint("Equal", 59, 9))
sketch1.addConstraint(Sketcher.Constraint("Equal", 9, 11))
sketch1.addConstraint(Sketcher.Constraint("Equal", 54, 13))
sketch1.addConstraint(Sketcher.Constraint("Equal", 32, 15))
sketch1.addConstraint(Sketcher.Constraint("Equal", 26, 29))
sketch1.addConstraint(Sketcher.Constraint("Radius", 1, Q("1 mm")))
sketch1.addConstraint(Sketcher.Constraint("Radius", 7, Q("0.4 mm")))
sketch1.addConstraint(Sketcher.Constraint("Radius", 60, Q("0.5 mm")))
sketch1.addConstraint(Sketcher.Constraint("DistanceX", 2, 2, 2, 1, Q("28 mm")))
sketch1.addConstraint(Sketcher.Constraint("DistanceX", 10, 2, 10, 1, Q("3 mm")))
sketch1.addConstraint(Sketcher.Constraint("DistanceX", 28, 1, 28, 2, Q("6 mm")))
sketch1.addConstraint(Sketcher.Constraint("DistanceX", 63, 1, 63, 2, Q("2 mm")))
sketch1.addConstraint(Sketcher.Constraint("DistanceX", 68, 1, 68, 2, Q("12 mm")))
sketch1.addConstraint(Sketcher.Constraint("DistanceY", 61, 1, 61, 2, Q("23 mm")))
sketch1.addConstraint(Sketcher.Constraint("DistanceX", 5, 1, 5, 2, Q("1.5 mm")))
sketch1.addConstraint(Sketcher.Constraint("DistanceX", 12, 1, 12, 2, Q("2.5 mm")))
sketch1.addConstraint(Sketcher.Constraint("DistanceY", 69, 2, 69, 1, Q("23.5 mm")))
pad1 = doc.addObject("PartDesign::Pad", "Pad")
body.addObject(pad1)
pad1.Profile = sketch1
pad1.Length = 152
pad1.Midplane = True

# Sketch on XY plane
sketch2 = doc.addObject("Sketcher::SketchObject", "Sketch001")
body.addObject(sketch2)
sketch2.AttachmentSupport = (doc.XY_Plane, [""])
sketch2.MapMode = "FlatFace"
sketch2.AttachmentOffset = App.Placement(Vector(0, 0, -15), App.Rotation())
sketch2.addGeometry(Part.Circle(Vector(56, 0, 0), Vector(0, 0, 1), 2.5), False)
sketch2.addGeometry(Part.Circle(Vector(41, 0, 0), Vector(0, 0, 1), 2.5), False)
sketch2.addGeometry(Part.Circle(Vector(-41, 0, 0), Vector(0, 0, 1), 2.5), False)
sketch2.addGeometry(Part.Circle(Vector(-56, 0, 0), Vector(0, 0, 1), 2.5), False)
sketch2.addConstraint(Sketcher.Constraint("Equal", 0, 1))
sketch2.addConstraint(Sketcher.Constraint("Equal", 1, 2))
sketch2.addConstraint(Sketcher.Constraint("Equal", 2, 3))
sketch2.addConstraint(Sketcher.Constraint("Symmetric", 1, 3, 2, 3, -1, 1))
sketch2.addConstraint(Sketcher.Constraint("Symmetric", 0, 3, 3, 3, -1, 1))
sketch2.addConstraint(Sketcher.Constraint("PointOnObject", 0, 3, -1))
sketch2.addConstraint(Sketcher.Constraint("PointOnObject", 1, 3, -1))
sketch2.addConstraint(Sketcher.Constraint("Diameter", 0, Q("5 mm")))
sketch2.addConstraint(Sketcher.Constraint("DistanceX", -1, 1, 0, 3, Q("56 mm")))
sketch2.addConstraint(Sketcher.Constraint("DistanceX", -1, 1, 1, 3, Q("41 mm")))
doc.recompute()
hole = doc.addObject("PartDesign::Hole", "Hole")
body.addObject(hole)
hole.Profile = sketch2
hole.ThreadType = "None"
hole.Diameter = 5
hole.DepthType = "Dimension"
hole.Depth = 15
hole.DrillPoint = "Angled"
hole.DrillPointAngle = 118
hole.Reversed = True

# Sketch on XZ plane
sketch3 = doc.addObject("Sketcher::SketchObject", "Sketch002")
body.addObject(sketch3)
sketch3.AttachmentSupport = (doc.XZ_Plane, [""])
sketch3.MapMode = "FlatFace"
sketch3.AttachmentOffset = App.Placement(Vector(0, 0, 15), App.Rotation())
sketch3.addGeometry(Part.Circle(Vector(56, 0, 0), Vector(0, 0, 1), 2.5), False)
sketch3.addGeometry(Part.Circle(Vector(41, 0, 0), Vector(0, 0, 1), 2.5), False)
sketch3.addGeometry(Part.Circle(Vector(-41, 0, 0), Vector(0, 0, 1), 2.5), False)
sketch3.addGeometry(Part.Circle(Vector(-56, 0, 0), Vector(0, 0, 1), 2.5), False)
sketch3.addConstraint(Sketcher.Constraint("Equal", 0, 1))
sketch3.addConstraint(Sketcher.Constraint("Equal", 1, 2))
sketch3.addConstraint(Sketcher.Constraint("Equal", 2, 3))
sketch3.addConstraint(Sketcher.Constraint("Symmetric", 1, 3, 2, 3, -1, 1))
sketch3.addConstraint(Sketcher.Constraint("Symmetric", 0, 3, 3, 3, -1, 1))
sketch3.addConstraint(Sketcher.Constraint("PointOnObject", 0, 3, -1))
sketch3.addConstraint(Sketcher.Constraint("PointOnObject", 1, 3, -1))
sketch3.addConstraint(Sketcher.Constraint("Diameter", 0, Q("5 mm")))
sketch3.addConstraint(Sketcher.Constraint("DistanceX", -1, 1, 0, 3, Q("56 mm")))
sketch3.addConstraint(Sketcher.Constraint("DistanceX", -1, 1, 1, 3, Q("41 mm")))
doc.recompute()
hole2 = doc.addObject("PartDesign::Hole", "Hole001")
body.addObject(hole2)
hole2.Profile = sketch3
hole2.ThreadType = "None"
hole2.Diameter = 5
hole2.DepthType = "Dimension"
hole2.Depth = 15
hole2.DrillPoint = "Angled"
hole2.DrillPointAngle = 118

doc.recompute()
